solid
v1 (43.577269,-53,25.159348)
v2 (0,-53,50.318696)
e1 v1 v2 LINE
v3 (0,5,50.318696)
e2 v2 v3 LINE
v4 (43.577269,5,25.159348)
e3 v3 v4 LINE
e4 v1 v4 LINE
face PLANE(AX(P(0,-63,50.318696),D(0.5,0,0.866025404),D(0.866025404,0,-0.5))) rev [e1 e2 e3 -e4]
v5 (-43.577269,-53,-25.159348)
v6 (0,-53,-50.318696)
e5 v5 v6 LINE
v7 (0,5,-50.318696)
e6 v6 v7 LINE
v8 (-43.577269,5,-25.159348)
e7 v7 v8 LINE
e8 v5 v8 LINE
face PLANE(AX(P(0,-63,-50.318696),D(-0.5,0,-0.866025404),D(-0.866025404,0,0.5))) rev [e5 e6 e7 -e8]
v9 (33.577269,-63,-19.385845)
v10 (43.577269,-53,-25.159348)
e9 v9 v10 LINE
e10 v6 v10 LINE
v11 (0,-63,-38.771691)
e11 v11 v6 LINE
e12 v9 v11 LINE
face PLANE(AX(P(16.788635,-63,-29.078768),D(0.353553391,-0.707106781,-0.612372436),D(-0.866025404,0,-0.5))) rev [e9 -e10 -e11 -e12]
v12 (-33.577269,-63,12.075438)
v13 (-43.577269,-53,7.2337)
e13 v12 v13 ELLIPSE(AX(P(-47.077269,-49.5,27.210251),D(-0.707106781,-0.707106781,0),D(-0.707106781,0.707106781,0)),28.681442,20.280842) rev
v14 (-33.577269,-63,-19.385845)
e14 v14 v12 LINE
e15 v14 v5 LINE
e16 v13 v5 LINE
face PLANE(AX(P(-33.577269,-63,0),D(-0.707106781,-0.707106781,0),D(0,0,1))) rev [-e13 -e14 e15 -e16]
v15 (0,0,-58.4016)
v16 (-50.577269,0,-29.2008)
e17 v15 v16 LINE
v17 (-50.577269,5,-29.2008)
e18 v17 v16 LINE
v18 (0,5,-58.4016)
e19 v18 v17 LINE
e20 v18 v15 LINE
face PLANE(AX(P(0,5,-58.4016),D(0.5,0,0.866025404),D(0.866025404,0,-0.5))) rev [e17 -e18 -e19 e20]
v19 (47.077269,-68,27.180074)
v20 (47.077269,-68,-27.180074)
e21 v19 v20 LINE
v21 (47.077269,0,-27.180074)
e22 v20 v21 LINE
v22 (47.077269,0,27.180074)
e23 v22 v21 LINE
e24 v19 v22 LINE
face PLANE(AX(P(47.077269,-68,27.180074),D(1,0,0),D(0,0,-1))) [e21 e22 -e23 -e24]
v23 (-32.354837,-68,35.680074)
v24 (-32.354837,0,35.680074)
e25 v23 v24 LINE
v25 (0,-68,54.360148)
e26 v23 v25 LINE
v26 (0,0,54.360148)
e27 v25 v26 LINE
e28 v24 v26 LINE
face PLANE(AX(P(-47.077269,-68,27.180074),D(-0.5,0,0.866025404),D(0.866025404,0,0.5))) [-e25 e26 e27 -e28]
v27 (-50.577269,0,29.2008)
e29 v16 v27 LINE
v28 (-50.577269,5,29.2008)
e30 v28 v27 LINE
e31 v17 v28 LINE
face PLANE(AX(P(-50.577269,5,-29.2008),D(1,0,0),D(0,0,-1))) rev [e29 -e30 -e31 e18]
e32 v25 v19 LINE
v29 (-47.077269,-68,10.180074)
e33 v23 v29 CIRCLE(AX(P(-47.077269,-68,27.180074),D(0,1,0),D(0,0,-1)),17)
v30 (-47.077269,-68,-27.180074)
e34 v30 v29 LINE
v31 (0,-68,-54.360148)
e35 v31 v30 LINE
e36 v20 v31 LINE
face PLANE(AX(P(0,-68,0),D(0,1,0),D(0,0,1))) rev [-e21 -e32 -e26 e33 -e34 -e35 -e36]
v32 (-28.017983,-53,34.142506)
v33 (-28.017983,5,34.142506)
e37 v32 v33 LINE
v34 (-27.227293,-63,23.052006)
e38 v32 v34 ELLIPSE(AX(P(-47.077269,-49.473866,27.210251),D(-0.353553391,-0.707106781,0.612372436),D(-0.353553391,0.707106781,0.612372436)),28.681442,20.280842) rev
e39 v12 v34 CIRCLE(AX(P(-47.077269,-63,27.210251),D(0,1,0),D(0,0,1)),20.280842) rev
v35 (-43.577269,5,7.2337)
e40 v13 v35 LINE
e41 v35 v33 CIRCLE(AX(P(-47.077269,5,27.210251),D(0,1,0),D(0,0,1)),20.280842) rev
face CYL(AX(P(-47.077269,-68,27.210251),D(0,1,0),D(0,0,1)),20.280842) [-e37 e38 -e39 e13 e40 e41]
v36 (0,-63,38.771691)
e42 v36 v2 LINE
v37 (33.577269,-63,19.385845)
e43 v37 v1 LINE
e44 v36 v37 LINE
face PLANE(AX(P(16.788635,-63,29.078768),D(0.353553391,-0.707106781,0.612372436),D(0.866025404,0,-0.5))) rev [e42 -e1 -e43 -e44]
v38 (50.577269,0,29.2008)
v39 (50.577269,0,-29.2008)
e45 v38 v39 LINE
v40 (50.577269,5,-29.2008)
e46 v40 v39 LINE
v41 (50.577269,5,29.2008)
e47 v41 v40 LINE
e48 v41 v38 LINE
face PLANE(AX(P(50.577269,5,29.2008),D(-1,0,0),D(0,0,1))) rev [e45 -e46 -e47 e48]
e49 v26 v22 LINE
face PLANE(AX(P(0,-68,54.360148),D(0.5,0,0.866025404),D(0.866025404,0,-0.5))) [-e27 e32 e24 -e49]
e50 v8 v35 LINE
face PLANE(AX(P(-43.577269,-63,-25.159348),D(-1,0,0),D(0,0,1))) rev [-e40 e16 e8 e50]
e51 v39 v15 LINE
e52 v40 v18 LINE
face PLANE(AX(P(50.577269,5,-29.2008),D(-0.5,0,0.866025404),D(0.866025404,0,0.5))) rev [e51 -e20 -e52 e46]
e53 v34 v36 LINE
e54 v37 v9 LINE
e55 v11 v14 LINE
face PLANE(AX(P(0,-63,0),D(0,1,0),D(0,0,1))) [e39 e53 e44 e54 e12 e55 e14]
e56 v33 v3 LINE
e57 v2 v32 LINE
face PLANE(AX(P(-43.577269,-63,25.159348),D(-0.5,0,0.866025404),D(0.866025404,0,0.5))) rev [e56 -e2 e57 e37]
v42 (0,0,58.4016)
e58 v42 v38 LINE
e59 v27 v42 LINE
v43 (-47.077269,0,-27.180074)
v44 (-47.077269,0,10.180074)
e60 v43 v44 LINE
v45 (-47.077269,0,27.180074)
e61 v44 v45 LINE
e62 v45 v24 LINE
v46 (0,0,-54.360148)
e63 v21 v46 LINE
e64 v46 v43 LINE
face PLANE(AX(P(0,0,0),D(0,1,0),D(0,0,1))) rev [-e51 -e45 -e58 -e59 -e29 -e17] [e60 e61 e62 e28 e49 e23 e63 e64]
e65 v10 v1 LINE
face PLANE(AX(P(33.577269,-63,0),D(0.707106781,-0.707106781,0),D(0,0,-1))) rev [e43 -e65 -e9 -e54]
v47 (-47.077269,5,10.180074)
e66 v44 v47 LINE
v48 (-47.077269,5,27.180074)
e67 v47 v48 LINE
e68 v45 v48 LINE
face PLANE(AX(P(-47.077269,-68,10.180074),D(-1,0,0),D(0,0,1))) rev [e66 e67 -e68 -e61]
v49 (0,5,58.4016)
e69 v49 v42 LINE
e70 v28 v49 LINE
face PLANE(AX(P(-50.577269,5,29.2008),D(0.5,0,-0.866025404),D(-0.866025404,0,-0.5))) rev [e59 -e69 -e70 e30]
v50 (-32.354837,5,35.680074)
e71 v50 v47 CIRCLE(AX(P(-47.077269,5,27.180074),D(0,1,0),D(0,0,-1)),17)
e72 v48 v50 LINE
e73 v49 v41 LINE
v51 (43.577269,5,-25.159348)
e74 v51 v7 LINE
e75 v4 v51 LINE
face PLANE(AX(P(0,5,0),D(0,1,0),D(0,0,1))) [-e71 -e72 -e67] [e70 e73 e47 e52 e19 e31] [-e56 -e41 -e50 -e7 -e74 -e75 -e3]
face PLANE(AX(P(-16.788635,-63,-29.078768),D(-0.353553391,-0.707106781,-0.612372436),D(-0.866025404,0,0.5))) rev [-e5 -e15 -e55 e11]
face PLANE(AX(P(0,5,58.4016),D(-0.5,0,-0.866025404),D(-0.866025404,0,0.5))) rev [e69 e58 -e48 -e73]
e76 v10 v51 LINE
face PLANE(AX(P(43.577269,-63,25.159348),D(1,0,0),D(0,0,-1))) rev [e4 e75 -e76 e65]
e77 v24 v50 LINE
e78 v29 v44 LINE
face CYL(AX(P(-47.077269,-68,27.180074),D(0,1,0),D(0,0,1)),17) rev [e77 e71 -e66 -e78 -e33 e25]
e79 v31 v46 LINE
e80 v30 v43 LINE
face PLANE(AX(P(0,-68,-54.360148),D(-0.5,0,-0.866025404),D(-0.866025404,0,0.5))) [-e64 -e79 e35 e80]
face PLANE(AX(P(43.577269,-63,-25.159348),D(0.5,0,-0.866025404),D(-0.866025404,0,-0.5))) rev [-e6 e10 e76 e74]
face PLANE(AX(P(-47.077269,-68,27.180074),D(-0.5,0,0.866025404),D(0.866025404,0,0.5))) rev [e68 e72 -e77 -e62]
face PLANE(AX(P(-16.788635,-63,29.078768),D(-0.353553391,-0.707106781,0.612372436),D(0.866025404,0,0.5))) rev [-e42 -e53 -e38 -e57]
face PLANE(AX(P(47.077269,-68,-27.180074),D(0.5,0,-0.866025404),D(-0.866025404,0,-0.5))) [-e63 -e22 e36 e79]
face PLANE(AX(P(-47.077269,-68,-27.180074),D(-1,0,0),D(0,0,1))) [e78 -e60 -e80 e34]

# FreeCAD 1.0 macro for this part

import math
import FreeCAD as App
import Part
import Sketcher

V = App.Vector
Q = App.Units.Quantity


def edges_at(feature, points):
    """Names of the edges that pass closest to the given points."""
    edges = feature.Shape.Edges
    near = lambda p: min(range(len(edges)), key=lambda i: edges[i].distToShape(Part.Vertex(*p))[0])
    return sorted({f"Edge{near(p) + 1}" for p in points})

doc = App.newDocument("Part")
body = doc.addObject("PartDesign::Body", "Body")

# Sketch on XZ plane
sketch1 = doc.addObject("Sketcher::SketchObject", "Sketch")
body.addObject(sketch1)
sketch1.AttachmentSupport = (doc.XZ_Plane, [""])
sketch1.MapMode = "FlatFace"
sketch1.addGeometry(Part.LineSegment(V(51, 29, 0), V(51, -29, 0)), False)
sketch1.addGeometry(Part.LineSegment(V(51, -29, 0), V(0, -58, 0)), False)
sketch1.addGeometry(Part.LineSegment(V(0, -58, 0), V(-51, -29, 0)), False)
sketch1.addGeometry(Part.LineSegment(V(-51, -29, 0), V(-51, 29, 0)), False)
sketch1.addGeometry(Part.LineSegment(V(-51, 29, 0), V(0, 58, 0)), False)
sketch1.addGeometry(Part.LineSegment(V(0, 58, 0), V(51, 29, 0)), False)
sketch1.addGeometry(Part.LineSegment(V(44, -25, 0), V(44, 25, 0)), False)
sketch1.addGeometry(Part.LineSegment(V(44, 25, 0), V(0, 50, 0)), False)
sketch1.addGeometry(Part.LineSegment(V(0, 50, 0), V(-44, 25, 0)), False)
sketch1.addGeometry(Part.LineSegment(V(-44, 25, 0), V(-44, -25, 0)), False)
sketch1.addGeometry(Part.LineSegment(V(-44, -25, 0), V(0, -50, 0)), False)
sketch1.addGeometry(Part.LineSegment(V(0, -50, 0), V(44, -25, 0)), False)
sketch1.addConstraint(Sketcher.Constraint("Coincident", 0, 2, 1, 1))
sketch1.addConstraint(Sketcher.Constraint("Coincident", 1, 2, 2, 1))
sketch1.addConstraint(Sketcher.Constraint("Coincident", 2, 2, 3, 1))
sketch1.addConstraint(Sketcher.Constraint("Coincident", 3, 2, 4, 1))
sketch1.addConstraint(Sketcher.Constraint("Coincident", 4, 2, 5, 1))
sketch1.addConstraint(Sketcher.Constraint("Coincident", 5, 2, 0, 1))
sketch1.addConstraint(Sketcher.Constraint("Coincident", 6, 2, 7, 1))
sketch1.addConstraint(Sketcher.Constraint("Coincident", 7, 2, 8, 1))
sketch1.addConstraint(Sketcher.Constraint("Coincident", 8, 2, 9, 1))
sketch1.addConstraint(Sketcher.Constraint("Coincident", 9, 2, 10, 1))
sketch1.addConstraint(Sketcher.Constraint("Coincident", 10, 2, 11, 1))
sketch1.addConstraint(Sketcher.Constraint("Coincident", 11, 2, 6, 1))
sketch1.addConstraint(Sketcher.Constraint("Vertical", 0))
sketch1.addConstraint(Sketcher.Constraint("Vertical", 3))
sketch1.addConstraint(Sketcher.Constraint("Vertical", 6))
sketch1.addConstraint(Sketcher.Constraint("Vertical", 9))
sketch1.addConstraint(Sketcher.Constraint("Symmetric", 0, 2, 3, 2, -1, 1))
sketch1.addConstraint(Sketcher.Constraint("Symmetric", 1, 2, 4, 2, -1, 1))
sketch1.addConstraint(Sketcher.Constraint("Symmetric", 6, 2, 9, 2, -1, 1))
sketch1.addConstraint(Sketcher.Constraint("Symmetric", 7, 2, 10, 2, -1, 1))
sketch1.addConstraint(Sketcher.Constraint("PointOnObject", 1, 2, -2))
sketch1.addConstraint(Sketcher.Constraint("PointOnObject", 7, 2, -2))
sketch1.addConstraint(Sketcher.Constraint("Parallel", 2, 5))
sketch1.addConstraint(Sketcher.Constraint("Parallel", 5, 7))
sketch1.addConstraint(Sketcher.Constraint("Parallel", 4, 8))
sketch1.addConstraint(Sketcher.Constraint("Parallel", 8, 11))
sketch1.addConstraint(Sketcher.Constraint("Horizontal", 0, 2, 2, 2))
sketch1.addConstraint(Sketcher.Constraint("Angle", 1, Q("-150 deg")))
sketch1.addConstraint(Sketcher.Constraint("DistanceX", 6, 2, 5, 2, Q("7 mm")))
sketch1.addConstraint(Sketcher.Constraint("DistanceY", 0, 2, 0, 1, Q("58.4016 mm")))
sketch1.addConstraint(Sketcher.Constraint("Distance", 1, Q("58.4016 mm")))
sketch1.addConstraint(Sketcher.Constraint("DistanceY", 6, 1, 6, 2, Q("50.318696 mm")))
pad1 = doc.addObject("PartDesign::Pad", "Pad")
body.addObject(pad1)
pad1.Profile = sketch1
pad1.Length = 5
pad1.Reversed = True

# Sketch on XZ plane
sketch2 = doc.addObject("Sketcher::SketchObject", "Sketch001")
body.addObject(sketch2)
sketch2.AttachmentSupport = (doc.XZ_Plane, [""])
sketch2.MapMode = "FlatFace"
sketch2.AttachmentOffset = App.Placement(V(0, 0, -5), App.Rotation())
sketch2.addGeometry(Part.LineSegment(V(47, 27, 0), V(47, -27, 0)), False)
sketch2.addGeometry(Part.LineSegment(V(47, -27, 0), V(0, -54, 0)), False)
sketch2.addGeometry(Part.LineSegment(V(0, -54, 0), V(-47, -27, 0)), False)
sketch2.addGeometry(Part.LineSegment(V(-47, -27, 0), V(-47, 27, 0)), False)
sketch2.addGeometry(Part.LineSegment(V(-47, 27, 0), V(0, 54, 0)), False)
sketch2.addGeometry(Part.LineSegment(V(0, 54, 0), V(47, 27, 0)), False)
sketch2.addConstraint(Sketcher.Constraint("Coincident", 0, 2, 1, 1))
sketch2.addConstraint(Sketcher.Constraint("Coincident", 1, 2, 2, 1))
sketch2.addConstraint(Sketcher.Constraint("Coincident", 2, 2, 3, 1))
sketch2.addConstraint(Sketcher.Constraint("Coincident", 3, 2, 4, 1))
sketch2.addConstraint(Sketcher.Constraint("Coincident", 4, 2, 5, 1))
sketch2.addConstraint(Sketcher.Constraint("Coincident", 5, 2, 0, 1))
sketch2.addConstraint(Sketcher.Constraint("Vertical", 0))
sketch2.addConstraint(Sketcher.Constraint("Vertical", 3))
sketch2.addConstraint(Sketcher.Constraint("Symmetric", 0, 2, 3, 2, -1, 1))
sketch2.addConstraint(Sketcher.Constraint("Symmetric", 1, 2, 4, 2, -1, 1))
sketch2.addConstraint(Sketcher.Constraint("PointOnObject", 1, 2, -2))
sketch2.addConstraint(Sketcher.Constraint("Parallel", 2, 5))
sketch2.addConstraint(Sketcher.Constraint("Horizontal", 0, 2, 2, 2))
sketch2.addConstraint(Sketcher.Constraint("Angle", 1, Q("-150 deg")))
sketch2.addConstraint(Sketcher.Constraint("DistanceY", 0, 2, 0, 1, Q("54.360148 mm")))
sketch2.addConstraint(Sketcher.Constraint("Distance", 1, Q("54.360148 mm")))
pad2 = doc.addObject("PartDesign::Pad", "Pad001")
body.addObject(pad2)
pad2.Profile = sketch2
pad2.Length = 73

# Sketch on XZ plane
sketch3 = doc.addObject("Sketcher::SketchObject", "Sketch002")
body.addObject(sketch3)
sketch3.AttachmentSupport = (doc.XZ_Plane, [""])
sketch3.MapMode = "FlatFace"
sketch3.AttachmentOffset = App.Placement(V(0, 0, -5), App.Rotation())
sketch3.addGeometry(Part.LineSegment(V(44, 25, 0), V(44, -25, 0)), False)
sketch3.addGeometry(Part.LineSegment(V(44, -25, 0), V(0, -50, 0)), False)
sketch3.addGeometry(Part.LineSegment(V(0, -50, 0), V(-44, -25, 0)), False)
sketch3.addGeometry(Part.LineSegment(V(-44, -25, 0), V(-44, 25, 0)), False)
sketch3.addGeometry(Part.LineSegment(V(-44, 25, 0), V(0, 50, 0)), False)
sketch3.addGeometry(Part.LineSegment(V(0, 50, 0), V(44, 25, 0)), False)
sketch3.addConstraint(Sketcher.Constraint("Coincident", 0, 2, 1, 1))
sketch3.addConstraint(Sketcher.Constraint("Coincident", 1, 2, 2, 1))
sketch3.addConstraint(Sketcher.Constraint("Coincident", 2, 2, 3, 1))
sketch3.addConstraint(Sketcher.Constraint("Coincident", 3, 2, 4, 1))
sketch3.addConstraint(Sketcher.Constraint("Coincident", 4, 2, 5, 1))
sketch3.addConstraint(Sketcher.Constraint("Coincident", 5, 2, 0, 1))
sketch3.addConstraint(Sketcher.Constraint("Vertical", 0))
sketch3.addConstraint(Sketcher.Constraint("Vertical", 3))
sketch3.addConstraint(Sketcher.Constraint("Symmetric", 0, 2, 3, 2, -1, 1))
sketch3.addConstraint(Sketcher.Constraint("Symmetric", 1, 2, 4, 2, -1, 1))
sketch3.addConstraint(Sketcher.Constraint("PointOnObject", 1, 2, -2))
sketch3.addConstraint(Sketcher.Constraint("Parallel", 2, 5))
sketch3.addConstraint(Sketcher.Constraint("Horizontal", 0, 2, 2, 2))
sketch3.addConstraint(Sketcher.Constraint("Angle", 1, Q("-150 deg")))
sketch3.addConstraint(Sketcher.Constraint("DistanceY", 0, 2, 0, 1, Q("50.318696 mm")))
sketch3.addConstraint(Sketcher.Constraint("DistanceX", -1, 1, 0, 2, Q("43.577269 mm")))
pocket1 = doc.addObject("PartDesign::Pocket", "Pocket")
body.addObject(pocket1)
pocket1.Profile = sketch3
pocket1.Length = 68
pocket1.Reversed = True

# Sketch on XZ plane
sketch4 = doc.addObject("Sketcher::SketchObject", "Sketch003")
body.addObject(sketch4)
sketch4.AttachmentSupport = (doc.XZ_Plane, [""])
sketch4.MapMode = "FlatFace"
sketch4.AttachmentOffset = App.Placement(V(0, 0, -5), App.Rotation())
sketch4.addGeometry(Part.ArcOfCircle(Part.Circle(V(-47, 27, 0), V(0, 0, 1), 20), math.radians(-80), math.radians(20)), False)
sketch4.addGeometry(Part.LineSegment(V(-44, 7, 0), V(-44, 25, 0)), False)
sketch4.addGeometry(Part.LineSegment(V(-44, 25, 0), V(-28, 34, 0)), False)
sketch4.addConstraint(Sketcher.Constraint("Coincident", 0, 1, 1, 1))
sketch4.addConstraint(Sketcher.Constraint("Coincident", 1, 2, 2, 1))
sketch4.addConstraint(Sketcher.Constraint("Coincident", 2, 2, 0, 2))
sketch4.addConstraint(Sketcher.Constraint("Vertical", 1))
sketch4.addConstraint(Sketcher.Constraint("Angle", 2, Q("30 deg")))
sketch4.addConstraint(Sketcher.Constraint("DistanceX", 0, 3, 0, 1, Q("3.5 mm")))
sketch4.addConstraint(Sketcher.Constraint("Radius", 0, Q("20.280842 mm")))
sketch4.addConstraint(Sketcher.Constraint("DistanceY", -1, 1, 0, 1, Q("7.2337 mm")))
sketch4.addConstraint(Sketcher.Constraint("DistanceY", 1, 1, 1, 2, Q("17.925648 mm")))
sketch4.addConstraint(Sketcher.Constraint("DistanceX", 0, 3, -1, 1, Q("47.077269 mm")))
pad3 = doc.addObject("PartDesign::Pad", "Pad002")
body.addObject(pad3)
pad3.Profile = sketch4
pad3.Length = 73

# Sketch on XZ plane
sketch5 = doc.addObject("Sketcher::SketchObject", "Sketch004")
body.addObject(sketch5)
sketch5.AttachmentSupport = (doc.XZ_Plane, [""])
sketch5.MapMode = "FlatFace"
sketch5.AttachmentOffset = App.Placement(V(0, 0, -5), App.Rotation())
sketch5.addGeometry(Part.LineSegment(V(-47, 10, 0), V(-47, 27, 0)), False)
sketch5.addGeometry(Part.LineSegment(V(-47, 27, 0), V(-32, 36, 0)), False)
sketch5.addGeometry(Part.ArcOfCircle(Part.Circle(V(-47, 27, 0), V(0, 0, 1), 17), math.radians(-90), math.radians(30)), False)
sketch5.addConstraint(Sketcher.Constraint("Coincident", 0, 2, 1, 1))
sketch5.addConstraint(Sketcher.Constraint("Coincident", 1, 2, 2, 2))
sketch5.addConstraint(Sketcher.Constraint("Coincident", 2, 1, 0, 1))
sketch5.addConstraint(Sketcher.Constraint("Vertical", 0))
sketch5.addConstraint(Sketcher.Constraint("Coincident", 0, 2, 2, 3))
sketch5.addConstraint(Sketcher.Constraint("Radius", 2, Q("17 mm")))
sketch5.addConstraint(Sketcher.Constraint("Angle", 1, Q("30 deg")))
sketch5.addConstraint(Sketcher.Constraint("DistanceX", 2, 3, -1, 1, Q("47.077269 mm")))
sketch5.addConstraint(Sketcher.Constraint("DistanceY", -1, 1, 2, 3, Q("27.180074 mm")))
pocket2 = doc.addObject("PartDesign::Pocket", "Pocket001")
body.addObject(pocket2)
pocket2.Profile = sketch5
pocket2.Length = 73
pocket2.Reversed = True
doc.recompute()

chamfer = doc.addObject("PartDesign::Chamfer", "Chamfer")
body.addObject(chamfer)
chamfer.Base = (pocket2, edges_at(pocket2, [
    (21.789, -63, 37.739),
    (-43.577, -63, -8.963),
    (-21.789, -63, -37.739),
    (21.789, -63, -37.739),
    (43.577, -63, 0),
    (-14.009, -63, 42.231),
]))
chamfer.Size = 10

doc.recompute()
